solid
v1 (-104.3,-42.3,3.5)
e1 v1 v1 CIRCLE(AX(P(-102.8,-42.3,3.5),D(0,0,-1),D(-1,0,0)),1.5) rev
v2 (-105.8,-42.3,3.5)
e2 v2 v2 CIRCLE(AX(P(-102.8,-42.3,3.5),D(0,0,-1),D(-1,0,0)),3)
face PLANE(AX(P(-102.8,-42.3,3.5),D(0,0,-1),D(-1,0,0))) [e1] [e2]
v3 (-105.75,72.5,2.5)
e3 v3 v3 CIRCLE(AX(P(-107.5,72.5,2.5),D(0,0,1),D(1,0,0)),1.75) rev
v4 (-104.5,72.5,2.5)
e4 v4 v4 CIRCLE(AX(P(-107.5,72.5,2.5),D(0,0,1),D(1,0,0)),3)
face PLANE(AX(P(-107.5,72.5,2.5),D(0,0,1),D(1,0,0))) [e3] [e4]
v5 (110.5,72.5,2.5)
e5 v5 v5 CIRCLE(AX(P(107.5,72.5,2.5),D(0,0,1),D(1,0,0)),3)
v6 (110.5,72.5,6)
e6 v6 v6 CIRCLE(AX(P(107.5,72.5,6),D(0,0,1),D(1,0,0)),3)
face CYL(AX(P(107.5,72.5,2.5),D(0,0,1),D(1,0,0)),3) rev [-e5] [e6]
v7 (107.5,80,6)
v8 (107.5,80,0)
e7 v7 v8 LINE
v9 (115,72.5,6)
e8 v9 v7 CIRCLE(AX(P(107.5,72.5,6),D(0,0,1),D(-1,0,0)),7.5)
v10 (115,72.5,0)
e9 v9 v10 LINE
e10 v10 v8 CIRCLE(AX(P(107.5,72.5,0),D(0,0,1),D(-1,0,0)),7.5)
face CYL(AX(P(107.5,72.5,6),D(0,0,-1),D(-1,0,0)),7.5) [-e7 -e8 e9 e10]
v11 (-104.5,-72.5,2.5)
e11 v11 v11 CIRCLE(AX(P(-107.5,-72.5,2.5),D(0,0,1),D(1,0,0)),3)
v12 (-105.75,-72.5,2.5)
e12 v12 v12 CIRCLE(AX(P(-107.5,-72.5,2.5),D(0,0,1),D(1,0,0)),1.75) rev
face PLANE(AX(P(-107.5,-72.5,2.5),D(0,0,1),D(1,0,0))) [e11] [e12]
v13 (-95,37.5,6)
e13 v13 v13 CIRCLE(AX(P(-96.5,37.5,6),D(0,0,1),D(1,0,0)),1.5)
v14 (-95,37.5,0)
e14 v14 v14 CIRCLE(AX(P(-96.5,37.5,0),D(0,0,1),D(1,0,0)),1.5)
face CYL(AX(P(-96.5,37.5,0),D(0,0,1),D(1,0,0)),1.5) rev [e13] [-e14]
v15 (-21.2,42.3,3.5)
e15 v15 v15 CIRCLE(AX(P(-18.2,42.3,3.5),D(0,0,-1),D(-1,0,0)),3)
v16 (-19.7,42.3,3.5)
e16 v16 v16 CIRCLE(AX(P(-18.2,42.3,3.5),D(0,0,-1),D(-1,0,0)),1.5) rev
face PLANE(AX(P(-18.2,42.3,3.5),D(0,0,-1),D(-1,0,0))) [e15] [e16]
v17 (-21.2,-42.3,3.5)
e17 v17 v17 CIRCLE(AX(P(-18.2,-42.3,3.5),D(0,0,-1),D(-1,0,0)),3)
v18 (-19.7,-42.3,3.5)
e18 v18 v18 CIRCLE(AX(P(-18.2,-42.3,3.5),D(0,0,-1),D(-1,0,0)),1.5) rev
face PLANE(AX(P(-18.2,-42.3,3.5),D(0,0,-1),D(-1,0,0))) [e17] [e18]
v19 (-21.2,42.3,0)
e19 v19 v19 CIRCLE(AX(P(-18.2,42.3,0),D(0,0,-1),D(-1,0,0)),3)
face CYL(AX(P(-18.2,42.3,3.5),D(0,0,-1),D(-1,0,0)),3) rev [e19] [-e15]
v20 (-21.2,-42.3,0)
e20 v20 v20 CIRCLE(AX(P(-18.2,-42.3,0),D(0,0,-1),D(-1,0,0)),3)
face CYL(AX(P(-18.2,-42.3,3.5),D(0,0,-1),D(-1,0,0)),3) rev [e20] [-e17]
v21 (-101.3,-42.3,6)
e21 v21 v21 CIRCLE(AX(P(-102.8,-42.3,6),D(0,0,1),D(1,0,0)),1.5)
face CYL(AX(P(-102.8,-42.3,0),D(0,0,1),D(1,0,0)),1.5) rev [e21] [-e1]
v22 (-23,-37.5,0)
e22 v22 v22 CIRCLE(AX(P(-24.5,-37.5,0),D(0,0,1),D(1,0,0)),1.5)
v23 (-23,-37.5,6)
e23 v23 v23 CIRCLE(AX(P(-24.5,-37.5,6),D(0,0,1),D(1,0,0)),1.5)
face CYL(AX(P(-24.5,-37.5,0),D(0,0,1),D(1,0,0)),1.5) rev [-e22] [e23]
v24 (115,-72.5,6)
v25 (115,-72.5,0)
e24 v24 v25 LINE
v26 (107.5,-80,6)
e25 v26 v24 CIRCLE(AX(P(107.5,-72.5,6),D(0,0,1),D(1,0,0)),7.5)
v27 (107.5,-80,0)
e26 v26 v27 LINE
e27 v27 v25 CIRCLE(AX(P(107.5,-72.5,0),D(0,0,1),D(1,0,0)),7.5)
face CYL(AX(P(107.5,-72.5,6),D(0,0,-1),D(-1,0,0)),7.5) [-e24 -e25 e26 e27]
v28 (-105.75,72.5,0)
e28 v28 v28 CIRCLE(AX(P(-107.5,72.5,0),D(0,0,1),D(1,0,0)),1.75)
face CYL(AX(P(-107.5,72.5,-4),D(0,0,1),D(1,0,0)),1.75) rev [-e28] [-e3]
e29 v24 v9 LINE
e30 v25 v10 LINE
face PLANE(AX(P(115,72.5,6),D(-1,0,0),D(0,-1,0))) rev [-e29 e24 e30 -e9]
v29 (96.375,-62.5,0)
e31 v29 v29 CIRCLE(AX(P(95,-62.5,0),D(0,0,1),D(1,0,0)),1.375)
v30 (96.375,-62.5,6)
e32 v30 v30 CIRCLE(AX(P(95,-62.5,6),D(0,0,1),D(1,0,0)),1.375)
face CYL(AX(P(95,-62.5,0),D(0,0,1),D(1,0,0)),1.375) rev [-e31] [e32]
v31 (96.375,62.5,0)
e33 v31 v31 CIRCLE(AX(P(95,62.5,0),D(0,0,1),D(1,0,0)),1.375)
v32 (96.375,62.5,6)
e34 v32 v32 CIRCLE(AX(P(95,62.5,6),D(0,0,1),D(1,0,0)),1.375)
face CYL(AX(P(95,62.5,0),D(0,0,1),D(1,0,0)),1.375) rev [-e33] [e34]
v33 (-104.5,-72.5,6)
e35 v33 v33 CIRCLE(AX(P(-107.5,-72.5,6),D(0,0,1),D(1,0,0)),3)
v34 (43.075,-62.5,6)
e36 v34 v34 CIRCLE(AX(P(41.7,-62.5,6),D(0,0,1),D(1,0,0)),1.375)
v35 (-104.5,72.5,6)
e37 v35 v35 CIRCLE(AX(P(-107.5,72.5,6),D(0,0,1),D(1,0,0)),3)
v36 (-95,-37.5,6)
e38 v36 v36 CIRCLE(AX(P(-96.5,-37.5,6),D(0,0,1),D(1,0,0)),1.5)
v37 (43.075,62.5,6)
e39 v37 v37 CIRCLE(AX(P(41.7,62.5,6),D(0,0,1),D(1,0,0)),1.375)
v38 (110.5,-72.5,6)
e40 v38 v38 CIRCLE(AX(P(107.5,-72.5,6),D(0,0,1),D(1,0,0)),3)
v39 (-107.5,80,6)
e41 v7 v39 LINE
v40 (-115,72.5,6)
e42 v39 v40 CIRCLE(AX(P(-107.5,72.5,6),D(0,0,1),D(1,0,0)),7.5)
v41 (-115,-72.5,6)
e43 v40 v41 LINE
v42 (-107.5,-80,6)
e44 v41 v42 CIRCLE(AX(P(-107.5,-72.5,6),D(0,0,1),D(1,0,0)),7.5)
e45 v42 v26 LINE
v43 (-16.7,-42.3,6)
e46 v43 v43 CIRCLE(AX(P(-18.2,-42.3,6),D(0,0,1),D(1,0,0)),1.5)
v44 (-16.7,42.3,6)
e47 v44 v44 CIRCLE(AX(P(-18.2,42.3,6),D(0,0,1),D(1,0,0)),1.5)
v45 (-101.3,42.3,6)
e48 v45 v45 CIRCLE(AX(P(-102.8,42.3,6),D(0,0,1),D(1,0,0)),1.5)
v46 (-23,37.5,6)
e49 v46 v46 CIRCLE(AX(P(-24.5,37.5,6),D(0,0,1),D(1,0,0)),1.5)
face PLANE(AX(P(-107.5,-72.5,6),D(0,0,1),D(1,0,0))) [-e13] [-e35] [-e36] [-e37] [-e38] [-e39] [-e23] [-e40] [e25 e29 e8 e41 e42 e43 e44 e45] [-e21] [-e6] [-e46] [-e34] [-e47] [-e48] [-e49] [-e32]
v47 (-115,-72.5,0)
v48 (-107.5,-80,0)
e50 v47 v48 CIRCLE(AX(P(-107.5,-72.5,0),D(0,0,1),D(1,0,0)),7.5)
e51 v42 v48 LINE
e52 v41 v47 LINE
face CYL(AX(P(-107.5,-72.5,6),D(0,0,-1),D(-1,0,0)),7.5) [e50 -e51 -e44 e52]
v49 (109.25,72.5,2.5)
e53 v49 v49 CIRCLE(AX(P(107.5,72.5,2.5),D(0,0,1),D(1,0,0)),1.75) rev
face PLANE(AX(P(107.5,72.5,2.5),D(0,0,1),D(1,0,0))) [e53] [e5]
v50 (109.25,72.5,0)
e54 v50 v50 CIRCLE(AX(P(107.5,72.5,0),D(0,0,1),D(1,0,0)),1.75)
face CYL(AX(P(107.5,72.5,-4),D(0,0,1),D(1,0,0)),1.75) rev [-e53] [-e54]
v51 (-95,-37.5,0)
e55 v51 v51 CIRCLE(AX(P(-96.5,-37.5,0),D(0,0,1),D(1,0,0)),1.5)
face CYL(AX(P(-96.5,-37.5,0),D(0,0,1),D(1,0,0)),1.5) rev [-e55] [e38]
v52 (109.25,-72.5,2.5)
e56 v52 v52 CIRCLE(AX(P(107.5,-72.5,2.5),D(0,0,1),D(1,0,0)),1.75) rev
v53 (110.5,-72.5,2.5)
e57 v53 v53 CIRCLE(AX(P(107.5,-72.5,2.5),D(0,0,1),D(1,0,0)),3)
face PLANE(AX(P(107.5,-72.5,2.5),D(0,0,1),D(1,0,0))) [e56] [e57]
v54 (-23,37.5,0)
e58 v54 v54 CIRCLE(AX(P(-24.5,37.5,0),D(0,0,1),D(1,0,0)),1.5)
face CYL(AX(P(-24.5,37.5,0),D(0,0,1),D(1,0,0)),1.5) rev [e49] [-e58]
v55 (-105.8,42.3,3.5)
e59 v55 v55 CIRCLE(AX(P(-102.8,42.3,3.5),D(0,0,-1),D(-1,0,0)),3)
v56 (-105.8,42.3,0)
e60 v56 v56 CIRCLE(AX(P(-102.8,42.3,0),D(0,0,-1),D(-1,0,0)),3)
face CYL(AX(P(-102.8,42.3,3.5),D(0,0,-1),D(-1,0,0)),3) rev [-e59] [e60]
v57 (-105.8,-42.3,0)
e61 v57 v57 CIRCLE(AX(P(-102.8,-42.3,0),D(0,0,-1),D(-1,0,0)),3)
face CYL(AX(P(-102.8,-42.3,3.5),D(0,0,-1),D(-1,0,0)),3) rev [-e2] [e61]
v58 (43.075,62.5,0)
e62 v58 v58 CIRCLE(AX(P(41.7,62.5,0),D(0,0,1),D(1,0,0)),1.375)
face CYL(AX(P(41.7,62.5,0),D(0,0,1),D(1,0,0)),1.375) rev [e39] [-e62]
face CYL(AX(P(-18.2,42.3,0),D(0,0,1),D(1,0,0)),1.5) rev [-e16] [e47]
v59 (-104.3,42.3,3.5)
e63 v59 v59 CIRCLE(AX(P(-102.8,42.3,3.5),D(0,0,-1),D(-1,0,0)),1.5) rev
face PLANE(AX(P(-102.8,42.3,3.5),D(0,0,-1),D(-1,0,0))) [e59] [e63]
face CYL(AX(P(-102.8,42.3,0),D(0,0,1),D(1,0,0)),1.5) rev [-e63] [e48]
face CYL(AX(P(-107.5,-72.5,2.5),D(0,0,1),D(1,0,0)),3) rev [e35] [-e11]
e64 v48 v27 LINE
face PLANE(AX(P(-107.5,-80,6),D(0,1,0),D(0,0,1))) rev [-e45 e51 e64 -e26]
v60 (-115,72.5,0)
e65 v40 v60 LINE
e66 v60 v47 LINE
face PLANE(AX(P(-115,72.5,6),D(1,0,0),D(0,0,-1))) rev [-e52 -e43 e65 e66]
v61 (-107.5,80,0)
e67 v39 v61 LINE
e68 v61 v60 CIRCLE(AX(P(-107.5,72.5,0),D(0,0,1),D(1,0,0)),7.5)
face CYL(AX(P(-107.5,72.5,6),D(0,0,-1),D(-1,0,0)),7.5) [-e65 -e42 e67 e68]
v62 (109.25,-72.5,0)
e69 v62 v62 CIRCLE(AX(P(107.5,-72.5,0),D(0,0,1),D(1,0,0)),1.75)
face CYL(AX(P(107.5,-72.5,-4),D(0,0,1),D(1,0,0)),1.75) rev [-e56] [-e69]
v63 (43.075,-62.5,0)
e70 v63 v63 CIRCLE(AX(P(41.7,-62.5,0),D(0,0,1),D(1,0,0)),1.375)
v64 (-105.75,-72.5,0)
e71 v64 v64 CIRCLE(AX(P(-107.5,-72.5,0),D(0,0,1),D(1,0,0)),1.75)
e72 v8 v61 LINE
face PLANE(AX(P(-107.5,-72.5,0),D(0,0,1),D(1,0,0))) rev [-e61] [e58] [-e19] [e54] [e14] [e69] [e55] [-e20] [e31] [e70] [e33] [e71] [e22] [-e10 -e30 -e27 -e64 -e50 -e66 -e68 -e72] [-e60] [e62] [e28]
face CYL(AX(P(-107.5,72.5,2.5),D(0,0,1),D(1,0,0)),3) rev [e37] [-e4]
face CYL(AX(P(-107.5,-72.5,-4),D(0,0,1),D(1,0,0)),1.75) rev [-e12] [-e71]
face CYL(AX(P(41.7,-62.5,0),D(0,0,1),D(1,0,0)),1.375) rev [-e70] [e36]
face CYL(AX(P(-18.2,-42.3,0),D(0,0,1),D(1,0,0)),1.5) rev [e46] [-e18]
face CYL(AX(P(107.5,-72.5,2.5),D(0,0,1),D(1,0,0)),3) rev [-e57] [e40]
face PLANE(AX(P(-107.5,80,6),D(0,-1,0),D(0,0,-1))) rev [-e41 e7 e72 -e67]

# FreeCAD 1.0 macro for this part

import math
import FreeCAD as App
import Part
import Sketcher
from FreeCAD import Vector

doc = App.newDocument("Part")
body = doc.addObject("PartDesign::Body", "Body")

# Sketch on XY plane
sketch1 = body.newObject("Sketcher::SketchObject", "Sketch")
sketch1.AttachmentSupport = (doc.getObject("XY_Plane"), [""])
sketch1.MapMode = "FlatFace"
sketch1.addGeometry([
    Part.LineSegment(Vector(107.5, 80, 0), Vector(-107.5, 80, 0)),  # 0
    Part.ArcOfCircle(Part.Circle(Vector(-107.5, 72.5, 0), Vector(0, 0, 1), 7.5), math.radians(90), math.radians(180)),  # 1
    Part.LineSegment(Vector(-115, 72.5, 0), Vector(-115, -72.5, 0)),  # 2
    Part.ArcOfCircle(Part.Circle(Vector(-107.5, -72.5, 0), Vector(0, 0, 1), 7.5), math.radians(180), math.radians(270)),  # 3
    Part.LineSegment(Vector(-107.5, -80, 0), Vector(107.5, -80, 0)),  # 4
    Part.ArcOfCircle(Part.Circle(Vector(107.5, -72.5, 0), Vector(0, 0, 1), 7.5), math.radians(-90), math.radians(0)),  # 5
    Part.LineSegment(Vector(115, -72.5, 0), Vector(115, 72.5, 0)),  # 6
    Part.ArcOfCircle(Part.Circle(Vector(107.5, 72.5, 0), Vector(0, 0, 1), 7.5), math.radians(0), math.radians(90)),  # 7
], False)
sketch1.addConstraint([
    Sketcher.Constraint("Tangent", 0, 2, 1, 1),
    Sketcher.Constraint("Tangent", 1, 2, 2, 1),
    Sketcher.Constraint("Tangent", 2, 2, 3, 1),
    Sketcher.Constraint("Tangent", 3, 2, 4, 1),
    Sketcher.Constraint("Tangent", 4, 2, 5, 1),
    Sketcher.Constraint("Tangent", 5, 2, 6, 1),
    Sketcher.Constraint("Tangent", 6, 2, 7, 1),
    Sketcher.Constraint("Tangent", 7, 2, 0, 1),
    Sketcher.Constraint("Horizontal", 0),
    Sketcher.Constraint("Vertical", 2),
    Sketcher.Constraint("Horizontal", 4),
    Sketcher.Constraint("Vertical", 6),
    Sketcher.Constraint("Equal", 1, 3),
    Sketcher.Constraint("Equal", 3, 5),
    Sketcher.Constraint("Equal", 5, 7),
    Sketcher.Constraint("Symmetric", 1, 3, 5, 3, -1, 1),
    Sketcher.Constraint("Radius", 1, 7.5),
    Sketcher.Constraint("DistanceX", 0, 2, 0, 1, 215.0),
    Sketcher.Constraint("DistanceY", 2, 2, 2, 1, 145.0),
])
pad1 = body.newObject("PartDesign::Pad", "Pad")
pad1.Profile = sketch1
pad1.Length = 6

# Sketch on XY plane
sketch2 = body.newObject("Sketcher::SketchObject", "Sketch001")
sketch2.AttachmentSupport = (doc.getObject("XY_Plane"), [""])
sketch2.MapMode = "FlatFace"
sketch2.AttachmentOffset = App.Placement(Vector(0, 0, 6), App.Rotation())
sketch2.addGeometry([
    Part.Circle(Vector(-107.5, -72.5, 0), Vector(0, 0, 1), 1.75),
    Part.Circle(Vector(-107.5, 72.5, 0), Vector(0, 0, 1), 1.75),
    Part.Circle(Vector(107.5, -72.5, 0), Vector(0, 0, 1), 1.75),
    Part.Circle(Vector(107.5, 72.5, 0), Vector(0, 0, 1), 1.75),
], False)
sketch2.addConstraint([
    Sketcher.Constraint("Equal", 0, 1),
    Sketcher.Constraint("Equal", 1, 2),
    Sketcher.Constraint("Equal", 2, 3),
    Sketcher.Constraint("Symmetric", 1, 3, 2, 3, -1, 1),
    Sketcher.Constraint("Symmetric", 0, 3, 3, 3, -1, 1),
    Sketcher.Constraint("Symmetric", 0, 3, 2, 3, -2),
    Sketcher.Constraint("Diameter", 0, 3.5),
    Sketcher.Constraint("DistanceY", 0, 3, 1, 3, 145.0),
    Sketcher.Constraint("DistanceX", 0, 3, 2, 3, 215.0),
])
pocket1 = body.newObject("PartDesign::Pocket", "Pocket")
pocket1.Profile = sketch2
pocket1.Length = 10

# Sketch on XY plane
sketch3 = body.newObject("Sketcher::SketchObject", "Sketch002")
sketch3.AttachmentSupport = (doc.getObject("XY_Plane"), [""])
sketch3.MapMode = "FlatFace"
sketch3.AttachmentOffset = App.Placement(Vector(0, 0, 6), App.Rotation())
sketch3.addGeometry([
    Part.Circle(Vector(-107.5, -72.5, 0), Vector(0, 0, 1), 3),
    Part.Circle(Vector(-107.5, 72.5, 0), Vector(0, 0, 1), 3),
    Part.Circle(Vector(107.5, 72.5, 0), Vector(0, 0, 1), 3),
    Part.Circle(Vector(107.5, -72.5, 0), Vector(0, 0, 1), 3),
], False)
sketch3.addConstraint([
    Sketcher.Constraint("Equal", 0, 1),
    Sketcher.Constraint("Equal", 1, 2),
    Sketcher.Constraint("Equal", 2, 3),
    Sketcher.Constraint("Symmetric", 0, 3, 2, 3, -1, 1),
    Sketcher.Constraint("Symmetric", 1, 3, 3, 3, -1, 1),
    Sketcher.Constraint("Symmetric", 1, 3, 2, 3, -2),
    Sketcher.Constraint("Diameter", 0, 6.0),
    Sketcher.Constraint("DistanceY", 0, 3, 1, 3, 145.0),
    Sketcher.Constraint("DistanceX", 1, 3, 2, 3, 215.0),
])
pocket2 = body.newObject("PartDesign::Pocket", "Pocket001")
pocket2.Profile = sketch3
pocket2.Length = 3.5

# Sketch on XY plane
sketch4 = body.newObject("Sketcher::SketchObject", "Sketch003")
sketch4.AttachmentSupport = (doc.getObject("XY_Plane"), [""])
sketch4.MapMode = "FlatFace"
sketch4.AttachmentOffset = App.Placement(Vector(0, 0, 6), App.Rotation())
sketch4.addGeometry([
    Part.Circle(Vector(-96.5, 37.5, 0), Vector(0, 0, 1), 1.5),
    Part.Circle(Vector(-96.5, -37.5, 0), Vector(0, 0, 1), 1.5),
    Part.Circle(Vector(-24.5, 37.5, 0), Vector(0, 0, 1), 1.5),
    Part.Circle(Vector(-24.5, -37.5, 0), Vector(0, 0, 1), 1.5),
], False)
sketch4.addConstraint([
    Sketcher.Constraint("Equal", 0, 1),
    Sketcher.Constraint("Equal", 1, 2),
    Sketcher.Constraint("Equal", 2, 3),
    Sketcher.Constraint("Symmetric", 0, 3, 1, 3, -1),
    Sketcher.Constraint("Symmetric", 2, 3, 3, 3, -1),
    Sketcher.Constraint("Horizontal", 0, 3, 2, 3),
    Sketcher.Constraint("Diameter", 0, 3.0),
    Sketcher.Constraint("DistanceY", 1, 3, 0, 3, 75.0),
    Sketcher.Constraint("DistanceX", 0, 3, 2, 3, 72.0),
    Sketcher.Constraint("DistanceX", 0, 3, -1, 1, 96.5),
])
pocket3 = body.newObject("PartDesign::Pocket", "Pocket002")
pocket3.Profile = sketch4
pocket3.Type = "ThroughAll"

# Sketch on XY plane
sketch5 = body.newObject("Sketcher::SketchObject", "Sketch004")
sketch5.AttachmentSupport = (doc.getObject("XY_Plane"), [""])
sketch5.MapMode = "FlatFace"
sketch5.AttachmentOffset = App.Placement(Vector(0, 0, 6), App.Rotation())
sketch5.addGeometry([
    Part.Circle(Vector(95, -62.5, 0), Vector(0, 0, 1), 1.375),
    Part.Circle(Vector(95, 62.5, 0), Vector(0, 0, 1), 1.375),
    Part.Circle(Vector(41.7, -62.5, 0), Vector(0, 0, 1), 1.375),
    Part.Circle(Vector(41.7, 62.5, 0), Vector(0, 0, 1), 1.375),
], False)
sketch5.addConstraint([
    Sketcher.Constraint("Equal", 0, 1),
    Sketcher.Constraint("Equal", 1, 2),
    Sketcher.Constraint("Equal", 2, 3),
    Sketcher.Constraint("Symmetric", 0, 3, 1, 3, -1),
    Sketcher.Constraint("Symmetric", 2, 3, 3, 3, -1),
    Sketcher.Constraint("Horizontal", 0, 3, 2, 3),
    Sketcher.Constraint("Diameter", 0, 2.75),
    Sketcher.Constraint("DistanceX", -1, 1, 0, 3, 95.0),
    Sketcher.Constraint("DistanceY", 0, 3, 1, 3, 125.0),
    Sketcher.Constraint("DistanceX", -1, 1, 2, 3, 41.7),
])
pocket4 = body.newObject("PartDesign::Pocket", "Pocket003")
pocket4.Profile = sketch5
pocket4.Type = "ThroughAll"
pocket4.Midplane = True

# Sketch on XY plane
sketch6 = body.newObject("Sketcher::SketchObject", "Sketch005")
sketch6.AttachmentSupport = (doc.getObject("XY_Plane"), [""])
sketch6.MapMode = "FlatFace"
sketch6.AttachmentOffset = App.Placement(Vector(0, 0, 6), App.Rotation())
sketch6.addGeometry([
    Part.Circle(Vector(-102.8, 42.3, 0), Vector(0, 0, 1), 1.5),
    Part.Circle(Vector(-102.8, -42.3, 0), Vector(0, 0, 1), 1.5),
    Part.Circle(Vector(-18.2, -42.3, 0), Vector(0, 0, 1), 1.5),
    Part.Circle(Vector(-18.2, 42.3, 0), Vector(0, 0, 1), 1.5),
], False)
sketch6.addConstraint([
    Sketcher.Constraint("Equal", 0, 1),
    Sketcher.Constraint("Equal", 1, 2),
    Sketcher.Constraint("Equal", 2, 3),
    Sketcher.Constraint("Symmetric", 0, 3, 1, 3, -1),
    Sketcher.Constraint("Symmetric", 2, 3, 3, 3, -1),
    Sketcher.Constraint("Horizontal", 1, 3, 2, 3),
    Sketcher.Constraint("Diameter", 0, 3.0),
    Sketcher.Constraint("DistanceX", 0, 3, -1, 1, 102.8),
    Sketcher.Constraint("DistanceY", -1, 1, 0, 3, 42.3),
    Sketcher.Constraint("DistanceX", 2, 3, -1, 1, 18.2),
])
pocket5 = body.newObject("PartDesign::Pocket", "Pocket004")
pocket5.Profile = sketch6
pocket5.Type = "ThroughAll"

# Sketch on XY plane
sketch7 = body.newObject("Sketcher::SketchObject", "Sketch006")
sketch7.AttachmentSupport = (doc.getObject("XY_Plane"), [""])
sketch7.MapMode = "FlatFace"
sketch7.addGeometry([
    Part.Circle(Vector(-18.2, 42.3, 0), Vector(0, 0, 1), 3),
    Part.Circle(Vector(-18.2, -42.3, 0), Vector(0, 0, 1), 3),
    Part.Circle(Vector(-102.8, -42.3, 0), Vector(0, 0, 1), 3),
    Part.Circle(Vector(-102.8, 42.3, 0), Vector(0, 0, 1), 3),
], False)
sketch7.addConstraint([
    Sketcher.Constraint("Equal", 0, 1),
    Sketcher.Constraint("Equal", 1, 2),
    Sketcher.Constraint("Equal", 2, 3),
    Sketcher.Constraint("Symmetric", 0, 3, 1, 3, -1),
    Sketcher.Constraint("Symmetric", 2, 3, 3, 3, -1),
    Sketcher.Constraint("Horizontal", 1, 3, 2, 3),
    Sketcher.Constraint("Diameter", 0, 6.0),
    Sketcher.Constraint("DistanceX", 0, 3, -1, 1, 18.2),
    Sketcher.Constraint("DistanceY", -1, 1, 0, 3, 42.3),
    Sketcher.Constraint("DistanceX", 2, 3, -1, 1, 102.8),
])
pocket6 = body.newObject("PartDesign::Pocket", "Pocket005")
pocket6.Profile = sketch7
pocket6.Length = 3.5
pocket6.Reversed = True

doc.recompute()
